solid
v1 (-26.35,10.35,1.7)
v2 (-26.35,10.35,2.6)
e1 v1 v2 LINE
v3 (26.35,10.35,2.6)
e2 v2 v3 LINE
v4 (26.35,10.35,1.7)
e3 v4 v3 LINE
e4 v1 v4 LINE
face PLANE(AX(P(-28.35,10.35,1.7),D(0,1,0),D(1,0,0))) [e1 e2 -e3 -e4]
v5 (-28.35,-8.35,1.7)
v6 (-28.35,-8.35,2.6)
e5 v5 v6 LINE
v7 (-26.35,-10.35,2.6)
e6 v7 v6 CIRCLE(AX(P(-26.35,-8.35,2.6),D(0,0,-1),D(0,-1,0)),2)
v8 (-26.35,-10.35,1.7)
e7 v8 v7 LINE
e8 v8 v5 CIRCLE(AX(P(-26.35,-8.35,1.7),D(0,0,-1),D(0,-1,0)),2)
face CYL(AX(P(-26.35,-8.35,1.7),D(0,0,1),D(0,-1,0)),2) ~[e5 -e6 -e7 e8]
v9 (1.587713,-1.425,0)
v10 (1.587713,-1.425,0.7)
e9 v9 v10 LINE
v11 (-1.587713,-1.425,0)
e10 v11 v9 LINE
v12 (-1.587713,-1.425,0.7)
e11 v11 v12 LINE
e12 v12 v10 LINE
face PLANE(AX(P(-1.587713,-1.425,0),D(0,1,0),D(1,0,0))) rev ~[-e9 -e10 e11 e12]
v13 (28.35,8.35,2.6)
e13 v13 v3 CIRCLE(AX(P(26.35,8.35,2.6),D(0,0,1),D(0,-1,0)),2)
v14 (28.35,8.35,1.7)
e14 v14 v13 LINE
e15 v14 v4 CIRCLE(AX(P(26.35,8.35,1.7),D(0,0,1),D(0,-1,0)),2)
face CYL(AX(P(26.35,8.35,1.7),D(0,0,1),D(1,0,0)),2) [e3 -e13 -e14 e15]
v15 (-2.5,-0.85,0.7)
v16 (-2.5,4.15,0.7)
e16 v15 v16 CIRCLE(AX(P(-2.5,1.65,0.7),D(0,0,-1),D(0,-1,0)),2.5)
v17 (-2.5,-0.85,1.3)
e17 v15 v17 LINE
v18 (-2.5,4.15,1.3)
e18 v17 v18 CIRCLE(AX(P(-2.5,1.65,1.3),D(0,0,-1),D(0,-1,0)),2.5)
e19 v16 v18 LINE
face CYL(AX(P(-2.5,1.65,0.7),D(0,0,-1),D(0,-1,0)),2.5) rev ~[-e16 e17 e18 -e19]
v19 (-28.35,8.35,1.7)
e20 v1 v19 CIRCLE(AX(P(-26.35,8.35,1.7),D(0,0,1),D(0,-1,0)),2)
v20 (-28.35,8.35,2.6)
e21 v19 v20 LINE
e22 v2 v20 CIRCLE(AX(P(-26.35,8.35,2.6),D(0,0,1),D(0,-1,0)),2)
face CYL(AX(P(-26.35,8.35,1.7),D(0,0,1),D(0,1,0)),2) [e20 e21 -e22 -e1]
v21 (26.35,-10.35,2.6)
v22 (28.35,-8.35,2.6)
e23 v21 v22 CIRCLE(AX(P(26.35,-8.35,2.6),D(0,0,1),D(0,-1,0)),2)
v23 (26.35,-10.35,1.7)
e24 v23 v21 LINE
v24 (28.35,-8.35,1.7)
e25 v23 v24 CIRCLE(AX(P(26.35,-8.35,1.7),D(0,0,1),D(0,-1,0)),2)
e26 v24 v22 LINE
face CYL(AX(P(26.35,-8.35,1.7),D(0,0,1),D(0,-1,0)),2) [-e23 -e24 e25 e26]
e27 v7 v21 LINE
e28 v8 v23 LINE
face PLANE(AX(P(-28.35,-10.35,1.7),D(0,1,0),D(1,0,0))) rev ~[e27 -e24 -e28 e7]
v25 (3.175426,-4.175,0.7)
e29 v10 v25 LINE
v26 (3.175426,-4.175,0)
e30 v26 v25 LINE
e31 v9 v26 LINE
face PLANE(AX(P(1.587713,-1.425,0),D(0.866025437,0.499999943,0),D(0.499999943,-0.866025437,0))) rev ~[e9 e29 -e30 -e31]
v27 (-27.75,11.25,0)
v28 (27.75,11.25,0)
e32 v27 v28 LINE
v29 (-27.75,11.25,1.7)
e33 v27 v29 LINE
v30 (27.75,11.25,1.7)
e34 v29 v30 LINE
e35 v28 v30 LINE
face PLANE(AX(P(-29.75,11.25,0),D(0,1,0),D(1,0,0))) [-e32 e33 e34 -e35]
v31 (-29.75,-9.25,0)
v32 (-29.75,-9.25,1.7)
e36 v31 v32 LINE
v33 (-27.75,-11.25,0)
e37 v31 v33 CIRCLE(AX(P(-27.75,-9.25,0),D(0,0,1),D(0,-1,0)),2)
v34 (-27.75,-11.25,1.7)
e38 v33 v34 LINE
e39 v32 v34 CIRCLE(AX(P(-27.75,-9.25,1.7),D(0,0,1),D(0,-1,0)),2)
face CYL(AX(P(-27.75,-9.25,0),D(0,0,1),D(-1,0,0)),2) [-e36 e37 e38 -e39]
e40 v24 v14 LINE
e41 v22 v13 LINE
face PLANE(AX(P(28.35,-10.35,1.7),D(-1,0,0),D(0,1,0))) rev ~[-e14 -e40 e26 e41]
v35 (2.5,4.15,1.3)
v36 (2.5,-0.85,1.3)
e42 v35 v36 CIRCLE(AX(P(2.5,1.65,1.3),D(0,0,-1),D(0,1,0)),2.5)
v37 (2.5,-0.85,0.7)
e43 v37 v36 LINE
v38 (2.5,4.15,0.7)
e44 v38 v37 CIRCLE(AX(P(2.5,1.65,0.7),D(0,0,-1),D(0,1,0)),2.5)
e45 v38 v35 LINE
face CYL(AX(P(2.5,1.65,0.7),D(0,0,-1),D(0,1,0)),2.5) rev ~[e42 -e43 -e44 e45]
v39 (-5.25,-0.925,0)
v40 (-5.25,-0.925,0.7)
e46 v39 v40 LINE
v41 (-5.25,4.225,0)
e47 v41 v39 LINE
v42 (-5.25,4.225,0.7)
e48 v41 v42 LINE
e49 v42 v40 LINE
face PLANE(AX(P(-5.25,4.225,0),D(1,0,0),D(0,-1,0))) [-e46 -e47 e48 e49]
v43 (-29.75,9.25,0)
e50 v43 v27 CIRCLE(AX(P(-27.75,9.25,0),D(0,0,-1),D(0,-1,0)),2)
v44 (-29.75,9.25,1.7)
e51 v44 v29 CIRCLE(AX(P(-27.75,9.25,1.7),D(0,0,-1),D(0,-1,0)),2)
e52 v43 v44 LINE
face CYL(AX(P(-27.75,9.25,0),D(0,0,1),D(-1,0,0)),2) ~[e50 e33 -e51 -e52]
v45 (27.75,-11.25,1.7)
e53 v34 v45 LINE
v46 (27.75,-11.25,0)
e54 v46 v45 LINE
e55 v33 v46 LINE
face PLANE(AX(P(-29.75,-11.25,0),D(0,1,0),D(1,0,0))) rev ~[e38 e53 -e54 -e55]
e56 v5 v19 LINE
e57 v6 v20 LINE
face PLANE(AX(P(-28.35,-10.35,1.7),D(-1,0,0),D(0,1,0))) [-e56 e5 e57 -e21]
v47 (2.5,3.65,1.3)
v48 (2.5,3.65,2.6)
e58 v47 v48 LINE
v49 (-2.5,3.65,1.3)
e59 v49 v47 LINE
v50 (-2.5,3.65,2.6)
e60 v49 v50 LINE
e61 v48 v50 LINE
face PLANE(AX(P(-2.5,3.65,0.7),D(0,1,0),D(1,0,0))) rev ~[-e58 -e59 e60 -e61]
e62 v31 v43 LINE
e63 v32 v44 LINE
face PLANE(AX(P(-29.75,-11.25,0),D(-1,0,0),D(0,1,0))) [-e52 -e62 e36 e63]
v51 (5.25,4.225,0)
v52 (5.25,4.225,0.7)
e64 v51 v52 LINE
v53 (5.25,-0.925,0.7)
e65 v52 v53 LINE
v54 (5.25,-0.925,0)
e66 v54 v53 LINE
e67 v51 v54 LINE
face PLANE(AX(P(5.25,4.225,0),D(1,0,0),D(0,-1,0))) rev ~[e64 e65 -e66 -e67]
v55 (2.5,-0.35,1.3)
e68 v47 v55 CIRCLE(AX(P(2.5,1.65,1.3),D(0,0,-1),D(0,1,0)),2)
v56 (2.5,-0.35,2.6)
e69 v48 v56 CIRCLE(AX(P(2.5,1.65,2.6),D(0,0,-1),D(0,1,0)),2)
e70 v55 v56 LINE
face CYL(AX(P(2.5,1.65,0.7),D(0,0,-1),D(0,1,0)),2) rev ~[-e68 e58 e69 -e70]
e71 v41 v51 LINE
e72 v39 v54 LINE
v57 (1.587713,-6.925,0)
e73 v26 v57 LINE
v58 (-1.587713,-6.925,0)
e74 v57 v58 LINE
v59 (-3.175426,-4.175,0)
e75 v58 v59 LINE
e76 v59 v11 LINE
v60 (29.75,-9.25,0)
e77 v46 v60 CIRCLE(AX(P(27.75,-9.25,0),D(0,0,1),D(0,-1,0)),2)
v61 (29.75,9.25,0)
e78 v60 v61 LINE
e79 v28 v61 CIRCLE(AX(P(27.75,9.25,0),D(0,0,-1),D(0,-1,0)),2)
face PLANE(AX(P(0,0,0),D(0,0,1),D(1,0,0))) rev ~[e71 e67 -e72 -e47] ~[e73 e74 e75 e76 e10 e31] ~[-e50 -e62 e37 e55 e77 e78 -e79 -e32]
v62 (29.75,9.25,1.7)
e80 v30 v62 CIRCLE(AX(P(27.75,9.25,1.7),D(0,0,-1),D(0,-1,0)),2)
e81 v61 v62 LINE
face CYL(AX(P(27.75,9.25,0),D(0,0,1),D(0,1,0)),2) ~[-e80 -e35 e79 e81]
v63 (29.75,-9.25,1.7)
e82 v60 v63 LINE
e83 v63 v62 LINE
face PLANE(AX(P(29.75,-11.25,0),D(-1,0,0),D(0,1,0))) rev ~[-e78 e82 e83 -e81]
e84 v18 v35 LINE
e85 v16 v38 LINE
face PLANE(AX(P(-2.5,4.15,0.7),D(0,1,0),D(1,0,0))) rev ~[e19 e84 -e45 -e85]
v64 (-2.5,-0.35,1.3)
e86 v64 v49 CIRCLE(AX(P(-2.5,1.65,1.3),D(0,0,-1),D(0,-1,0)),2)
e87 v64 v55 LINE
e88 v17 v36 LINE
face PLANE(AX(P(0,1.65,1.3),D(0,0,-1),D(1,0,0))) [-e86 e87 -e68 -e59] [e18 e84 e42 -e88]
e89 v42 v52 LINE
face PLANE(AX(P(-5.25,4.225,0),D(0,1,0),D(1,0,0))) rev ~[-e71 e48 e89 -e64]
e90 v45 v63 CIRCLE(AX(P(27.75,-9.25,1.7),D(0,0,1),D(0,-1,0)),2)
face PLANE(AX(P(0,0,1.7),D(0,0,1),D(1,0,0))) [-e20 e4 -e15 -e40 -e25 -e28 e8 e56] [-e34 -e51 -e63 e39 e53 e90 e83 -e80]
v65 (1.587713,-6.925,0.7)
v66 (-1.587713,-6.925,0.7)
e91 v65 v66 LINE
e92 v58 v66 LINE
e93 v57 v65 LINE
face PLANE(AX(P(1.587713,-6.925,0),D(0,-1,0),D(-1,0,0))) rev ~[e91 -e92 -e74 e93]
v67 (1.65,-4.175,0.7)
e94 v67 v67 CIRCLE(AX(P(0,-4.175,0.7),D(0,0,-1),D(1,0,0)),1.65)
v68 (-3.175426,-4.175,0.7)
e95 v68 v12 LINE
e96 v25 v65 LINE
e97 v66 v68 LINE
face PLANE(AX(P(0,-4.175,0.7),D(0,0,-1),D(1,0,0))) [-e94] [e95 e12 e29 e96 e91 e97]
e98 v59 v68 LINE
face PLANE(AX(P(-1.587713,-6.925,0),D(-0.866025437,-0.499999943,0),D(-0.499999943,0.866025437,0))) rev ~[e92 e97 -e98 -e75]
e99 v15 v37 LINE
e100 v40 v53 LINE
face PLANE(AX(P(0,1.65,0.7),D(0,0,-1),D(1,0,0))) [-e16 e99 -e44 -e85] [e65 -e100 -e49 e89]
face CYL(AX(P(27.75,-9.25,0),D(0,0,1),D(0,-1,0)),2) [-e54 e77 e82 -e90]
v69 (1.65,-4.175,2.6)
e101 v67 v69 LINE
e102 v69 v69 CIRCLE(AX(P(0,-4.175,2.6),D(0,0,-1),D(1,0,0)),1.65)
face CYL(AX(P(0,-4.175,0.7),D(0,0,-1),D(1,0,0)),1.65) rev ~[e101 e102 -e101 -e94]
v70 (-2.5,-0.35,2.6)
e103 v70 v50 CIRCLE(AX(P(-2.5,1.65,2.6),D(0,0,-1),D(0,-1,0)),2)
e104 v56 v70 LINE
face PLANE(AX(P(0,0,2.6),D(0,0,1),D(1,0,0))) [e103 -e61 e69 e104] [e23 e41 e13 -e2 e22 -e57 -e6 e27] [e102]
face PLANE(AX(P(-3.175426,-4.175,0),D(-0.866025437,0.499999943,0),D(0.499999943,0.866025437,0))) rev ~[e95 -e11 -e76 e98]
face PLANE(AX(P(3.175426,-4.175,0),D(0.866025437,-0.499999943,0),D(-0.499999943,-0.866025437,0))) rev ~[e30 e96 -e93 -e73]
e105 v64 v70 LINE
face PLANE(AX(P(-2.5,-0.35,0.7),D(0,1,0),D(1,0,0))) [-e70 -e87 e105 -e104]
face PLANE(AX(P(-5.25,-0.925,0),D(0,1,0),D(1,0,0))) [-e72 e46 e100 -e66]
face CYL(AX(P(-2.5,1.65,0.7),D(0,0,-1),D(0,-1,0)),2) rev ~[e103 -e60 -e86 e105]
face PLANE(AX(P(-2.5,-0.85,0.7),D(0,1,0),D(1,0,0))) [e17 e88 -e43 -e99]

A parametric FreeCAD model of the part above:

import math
import FreeCAD as App
import Part
import Sketcher
from FreeCAD import Vector
Q = App.Units.Quantity


def edges_at(feature, points):
    """Names of the edges that pass closest to the given points."""
    edges = feature.Shape.Edges
    near = lambda p: min(range(len(edges)), key=lambda i: edges[i].distToShape(Part.Vertex(*p))[0])
    return sorted({f"Edge{near(p) + 1}" for p in points})

doc = App.newDocument("Part")
body = doc.addObject("PartDesign::Body", "Body")

# Sketch on XY plane
sketch1 = body.newObject("Sketcher::SketchObject", "Sketch")
sketch1.AttachmentSupport = (doc.getObject("XY_Plane"), [""])
sketch1.MapMode = "FlatFace"
sketch1.addGeometry(Part.LineSegment(Vector(-30, 11, 0), Vector(-30, -11, 0)), False)
sketch1.addGeometry(Part.LineSegment(Vector(-30, -11, 0), Vector(30, -11, 0)), False)
sketch1.addGeometry(Part.LineSegment(Vector(30, -11, 0), Vector(30, 11, 0)), False)
sketch1.addGeometry(Part.LineSegment(Vector(30, 11, 0), Vector(-30, 11, 0)), False)
sketch1.addConstraint(Sketcher.Constraint("Coincident", 0, 2, 1, 1))
sketch1.addConstraint(Sketcher.Constraint("Coincident", 1, 2, 2, 1))
sketch1.addConstraint(Sketcher.Constraint("Coincident", 2, 2, 3, 1))
sketch1.addConstraint(Sketcher.Constraint("Coincident", 3, 2, 0, 1))
sketch1.addConstraint(Sketcher.Constraint("Vertical", 0))
sketch1.addConstraint(Sketcher.Constraint("Horizontal", 1))
sketch1.addConstraint(Sketcher.Constraint("Vertical", 2))
sketch1.addConstraint(Sketcher.Constraint("Horizontal", 3))
sketch1.addConstraint(Sketcher.Constraint("Symmetric", 0, 2, 2, 2, -1, 1))
sketch1.addConstraint(Sketcher.Constraint("DistanceX", 1, 1, 1, 2, Q("59.5 mm")))
sketch1.addConstraint(Sketcher.Constraint("DistanceY", 0, 2, 0, 1, Q("22.5 mm")))
pad1 = body.newObject("PartDesign::Pad", "Pad")
pad1.Profile = sketch1
pad1.Length = 1.7

# Sketch on XY plane
sketch2 = body.newObject("Sketcher::SketchObject", "Sketch001")
sketch2.AttachmentSupport = (doc.getObject("XY_Plane"), [""])
sketch2.MapMode = "FlatFace"
sketch2.AttachmentOffset = App.Placement(Vector(0, 0, 1.7), App.Rotation())
sketch2.addGeometry(Part.LineSegment(Vector(-28, 10, 0), Vector(-28, -10, 0)), False)
sketch2.addGeometry(Part.LineSegment(Vector(-28, -10, 0), Vector(28, -10, 0)), False)
sketch2.addGeometry(Part.LineSegment(Vector(28, -10, 0), Vector(28, 10, 0)), False)
sketch2.addGeometry(Part.LineSegment(Vector(28, 10, 0), Vector(-28, 10, 0)), False)
sketch2.addConstraint(Sketcher.Constraint("Coincident", 0, 2, 1, 1))
sketch2.addConstraint(Sketcher.Constraint("Coincident", 1, 2, 2, 1))
sketch2.addConstraint(Sketcher.Constraint("Coincident", 2, 2, 3, 1))
sketch2.addConstraint(Sketcher.Constraint("Coincident", 3, 2, 0, 1))
sketch2.addConstraint(Sketcher.Constraint("Vertical", 0))
sketch2.addConstraint(Sketcher.Constraint("Horizontal", 1))
sketch2.addConstraint(Sketcher.Constraint("Vertical", 2))
sketch2.addConstraint(Sketcher.Constraint("Horizontal", 3))
sketch2.addConstraint(Sketcher.Constraint("Symmetric", 0, 2, 2, 2, -1, 1))
sketch2.addConstraint(Sketcher.Constraint("DistanceX", 1, 1, 1, 2, Q("56.7 mm")))
sketch2.addConstraint(Sketcher.Constraint("DistanceY", 0, 2, 0, 1, Q("20.7 mm")))
pad2 = body.newObject("PartDesign::Pad", "Pad001")
pad2.Profile = sketch2
pad2.Length = 0.9

# Sketch on XY plane
sketch3 = body.newObject("Sketcher::SketchObject", "Sketch002")
sketch3.AttachmentSupport = (doc.getObject("XY_Plane"), [""])
sketch3.MapMode = "FlatFace"
sketch3.addGeometry(Part.LineSegment(Vector(3.2, -4.2, 0), Vector(1.6, -6.9, 0)), False)
sketch3.addGeometry(Part.LineSegment(Vector(1.6, -6.9, 0), Vector(-1.6, -6.9, 0)), False)
sketch3.addGeometry(Part.LineSegment(Vector(-1.6, -6.9, 0), Vector(-3.2, -4.2, 0)), False)
sketch3.addGeometry(Part.LineSegment(Vector(-3.2, -4.2, 0), Vector(-1.6, -1.4, 0)), False)
sketch3.addGeometry(Part.LineSegment(Vector(-1.6, -1.4, 0), Vector(1.6, -1.4, 0)), False)
sketch3.addGeometry(Part.LineSegment(Vector(1.6, -1.4, 0), Vector(3.2, -4.2, 0)), False)
sketch3.addGeometry(Part.LineSegment(Vector(-5.2, -0.9, 0), Vector(-5.2, 4.2, 0)), False)
sketch3.addGeometry(Part.LineSegment(Vector(-5.2, 4.2, 0), Vector(5.2, 4.2, 0)), False)
sketch3.addGeometry(Part.LineSegment(Vector(5.2, 4.2, 0), Vector(5.2, -0.9, 0)), False)
sketch3.addGeometry(Part.LineSegment(Vector(5.2, -0.9, 0), Vector(-5.2, -0.9, 0)), False)
sketch3.addConstraint(Sketcher.Constraint("Coincident", 0, 2, 1, 1))
sketch3.addConstraint(Sketcher.Constraint("Coincident", 1, 2, 2, 1))
sketch3.addConstraint(Sketcher.Constraint("Coincident", 2, 2, 3, 1))
sketch3.addConstraint(Sketcher.Constraint("Coincident", 3, 2, 4, 1))
sketch3.addConstraint(Sketcher.Constraint("Coincident", 4, 2, 5, 1))
sketch3.addConstraint(Sketcher.Constraint("Coincident", 5, 2, 0, 1))
sketch3.addConstraint(Sketcher.Constraint("Coincident", 6, 2, 7, 1))
sketch3.addConstraint(Sketcher.Constraint("Coincident", 7, 2, 8, 1))
sketch3.addConstraint(Sketcher.Constraint("Coincident", 8, 2, 9, 1))
sketch3.addConstraint(Sketcher.Constraint("Coincident", 9, 2, 6, 1))
sketch3.addConstraint(Sketcher.Constraint("Horizontal", 1))
sketch3.addConstraint(Sketcher.Constraint("Horizontal", 4))
sketch3.addConstraint(Sketcher.Constraint("Vertical", 6))
sketch3.addConstraint(Sketcher.Constraint("Horizontal", 7))
sketch3.addConstraint(Sketcher.Constraint("Vertical", 8))
sketch3.addConstraint(Sketcher.Constraint("Horizontal", 9))
sketch3.addConstraint(Sketcher.Constraint("Symmetric", 2, 2, 5, 2, -2))
sketch3.addConstraint(Sketcher.Constraint("Parallel", 0, 3))
sketch3.addConstraint(Sketcher.Constraint("Parallel", 2, 5))
sketch3.addConstraint(Sketcher.Constraint("Vertical", 1, 2, 3, 2))
sketch3.addConstraint(Sketcher.Constraint("Vertical", 0, 2, 4, 2))
sketch3.addConstraint(Sketcher.Constraint("Angle", 0, Q("-119.999996 deg")))
sketch3.addConstraint(Sketcher.Constraint("DistanceX", 7, 1, 7, 2, Q("10.5 mm")))
sketch3.addConstraint(Sketcher.Constraint("DistanceY", 0, 2, 8, 2, Q("6 mm")))
sketch3.addConstraint(Sketcher.Constraint("DistanceY", 6, 1, 6, 2, Q("5.15 mm")))
sketch3.addConstraint(Sketcher.Constraint("DistanceY", 1, 2, 3, 2, Q("5.5 mm")))
sketch3.addConstraint(Sketcher.Constraint("DistanceX", 6, 2, -1, 1, Q("5.25 mm")))
sketch3.addConstraint(Sketcher.Constraint("DistanceY", 0, 2, -1, 1, Q("6.925 mm")))
sketch3.addConstraint(Sketcher.Constraint("DistanceX", 1, 2, 1, 1, Q("3.175426 mm")))
pocket1 = body.newObject("PartDesign::Pocket", "Pocket")
pocket1.Profile = sketch3
pocket1.Length = 0.7
pocket1.Reversed = True

# Sketch on XY plane
sketch4 = body.newObject("Sketcher::SketchObject", "Sketch003")
sketch4.AttachmentSupport = (doc.getObject("XY_Plane"), [""])
sketch4.MapMode = "FlatFace"
sketch4.AttachmentOffset = App.Placement(Vector(0, 0, 0.7), App.Rotation())
sketch4.addGeometry(Part.ArcOfCircle(Part.Circle(Vector(-2.5, 1.6, 0), Vector(0, 0, 1), 2.5), math.radians(90), math.radians(270)), False)
sketch4.addGeometry(Part.LineSegment(Vector(-2.5, 4.2, 0), Vector(2.5, 4.2, 0)), False)
sketch4.addGeometry(Part.ArcOfCircle(Part.Circle(Vector(2.5, 1.6, 0), Vector(0, 0, 1), 2.5), math.radians(-90), math.radians(90)), False)
sketch4.addGeometry(Part.LineSegment(Vector(2.5, -0.8, 0), Vector(-2.5, -0.8, 0)), False)
sketch4.addConstraint(Sketcher.Constraint("Tangent", 0, 1, 1, 1))
sketch4.addConstraint(Sketcher.Constraint("Tangent", 1, 2, 2, 2))
sketch4.addConstraint(Sketcher.Constraint("Tangent", 2, 1, 3, 1))
sketch4.addConstraint(Sketcher.Constraint("Tangent", 3, 2, 0, 2))
sketch4.addConstraint(Sketcher.Constraint("Horizontal", 1))
sketch4.addConstraint(Sketcher.Constraint("Horizontal", 3))
sketch4.addConstraint(Sketcher.Constraint("Radius", 0, Q("2.5 mm")))
sketch4.addConstraint(Sketcher.Constraint("DistanceX", 1, 1, 1, 2, Q("5 mm")))
sketch4.addConstraint(Sketcher.Constraint("DistanceX", 0, 3, -1, 1, Q("2.5 mm")))
sketch4.addConstraint(Sketcher.Constraint("DistanceY", -1, 1, 0, 3, Q("1.65 mm")))
pocket2 = body.newObject("PartDesign::Pocket", "Pocket001")
pocket2.Profile = sketch4
pocket2.Length = 0.6
pocket2.Reversed = True

# Sketch on XY plane
sketch5 = body.newObject("Sketcher::SketchObject", "Sketch004")
sketch5.AttachmentSupport = (doc.getObject("XY_Plane"), [""])
sketch5.MapMode = "FlatFace"
sketch5.AttachmentOffset = App.Placement(Vector(0, 0, 0.7), App.Rotation())
sketch5.addGeometry(Part.Circle(Vector(0, -4.2, 0), Vector(0, 0, 1), 1.6), False)
sketch5.addGeometry(Part.ArcOfCircle(Part.Circle(Vector(-2.5, 1.6, 0), Vector(0, 0, 1), 2), math.radians(90), math.radians(270)), False)
sketch5.addGeometry(Part.LineSegment(Vector(-2.5, 3.6, 0), Vector(2.5, 3.6, 0)), False)
sketch5.addGeometry(Part.ArcOfCircle(Part.Circle(Vector(2.5, 1.6, 0), Vector(0, 0, 1), 2), math.radians(-90), math.radians(90)), False)
sketch5.addGeometry(Part.LineSegment(Vector(2.5, -0.3, 0), Vector(-2.5, -0.3, 0)), False)
sketch5.addConstraint(Sketcher.Constraint("Tangent", 1, 1, 2, 1))
sketch5.addConstraint(Sketcher.Constraint("Tangent", 2, 2, 3, 2))
sketch5.addConstraint(Sketcher.Constraint("Tangent", 3, 1, 4, 1))
sketch5.addConstraint(Sketcher.Constraint("Tangent", 4, 2, 1, 2))
sketch5.addConstraint(Sketcher.Constraint("Horizontal", 2))
sketch5.addConstraint(Sketcher.Constraint("Horizontal", 4))
sketch5.addConstraint(Sketcher.Constraint("PointOnObject", 0, 3, -2))
sketch5.addConstraint(Sketcher.Constraint("Radius", 1, Q("2 mm")))
sketch5.addConstraint(Sketcher.Constraint("Diameter", 0, Q("3.3 mm")))
sketch5.addConstraint(Sketcher.Constraint("DistanceX", 2, 1, 2, 2, Q("5 mm")))
sketch5.addConstraint(Sketcher.Constraint("DistanceX", 1, 3, -1, 1, Q("2.5 mm")))
sketch5.addConstraint(Sketcher.Constraint("DistanceY", -1, 1, 1, 3, Q("1.65 mm")))
sketch5.addConstraint(Sketcher.Constraint("DistanceY", 0, 3, -1, 1, Q("4.175 mm")))
pocket3 = body.newObject("PartDesign::Pocket", "Pocket002")
pocket3.Profile = sketch5
pocket3.Type = "ThroughAll"
pocket3.Reversed = True
doc.recompute()

fillet = body.newObject("PartDesign::Fillet", "Fillet")
fillet.Base = (pocket3, edges_at(pocket3, [
    (-29.75, -11.25, 0.85),
    (-28.35, -10.35, 2.15),
    (-29.75, 11.25, 0.85),
    (-28.35, 10.35, 2.15),
    (28.35, -10.35, 2.15),
    (29.75, -11.25, 0.85),
    (28.35, 10.35, 2.15),
    (29.75, 11.25, 0.85),
]))
fillet.Radius = 2

doc.recompute()
